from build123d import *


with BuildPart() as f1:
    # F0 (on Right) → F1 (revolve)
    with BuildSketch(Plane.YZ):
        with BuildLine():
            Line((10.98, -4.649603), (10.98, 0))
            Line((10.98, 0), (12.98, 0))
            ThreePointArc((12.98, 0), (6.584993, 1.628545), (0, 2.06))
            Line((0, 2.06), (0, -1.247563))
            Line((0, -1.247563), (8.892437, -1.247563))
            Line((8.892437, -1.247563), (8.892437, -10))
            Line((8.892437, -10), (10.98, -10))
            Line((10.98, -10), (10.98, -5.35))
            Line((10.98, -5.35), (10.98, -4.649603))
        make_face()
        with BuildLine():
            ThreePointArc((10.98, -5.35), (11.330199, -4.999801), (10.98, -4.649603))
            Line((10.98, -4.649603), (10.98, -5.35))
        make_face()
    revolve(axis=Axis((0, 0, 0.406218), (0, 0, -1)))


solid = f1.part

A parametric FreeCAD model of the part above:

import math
import FreeCAD as App
import Part
import Sketcher
from FreeCAD import Vector

doc = App.newDocument("Part")
body = doc.addObject("PartDesign::Body", "Body")

# Sketch on YZ plane
sketch1 = body.newObject("Sketcher::SketchObject", "Sketch")
sketch1.AttachmentSupport = (doc.getObject("YZ_Plane"), [""])
sketch1.MapMode = "FlatFace"
sketch1.addGeometry(Part.LineSegment(Vector(10.98, 0, 0), Vector(12.98, 0, 0)), False)
sketch1.addGeometry(Part.ArcOfCircle(Part.Circle(Vector(0.95, -33.86, 0), Vector(0, 0, 1), 35.93), math.radians(70), math.radians(92)), False)
sketch1.addGeometry(Part.LineSegment(Vector(0, 2.06, 0), Vector(0, -1.25, 0)), False)
sketch1.addGeometry(Part.LineSegment(Vector(0, -1.25, 0), Vector(8.89, -1.25, 0)), False)
sketch1.addGeometry(Part.LineSegment(Vector(8.89, -1.25, 0), Vector(8.89, -10, 0)), False)
sketch1.addGeometry(Part.LineSegment(Vector(8.89, -10, 0), Vector(10.98, -10, 0)), False)
sketch1.addGeometry(Part.LineSegment(Vector(10.98, -10, 0), Vector(10.98, -5.35, 0)), False)
sketch1.addGeometry(Part.ArcOfCircle(Part.Circle(Vector(10.98, -5, 0), Vector(0, 0, 1), 0.35), math.radians(-90), math.radians(90)), False)
sketch1.addGeometry(Part.LineSegment(Vector(10.98, -4.65, 0), Vector(10.98, 0, 0)), False)
sketch1.addConstraint(Sketcher.Constraint("Coincident", 0, 2, 1, 1))
sketch1.addConstraint(Sketcher.Constraint("Coincident", 1, 2, 2, 1))
sketch1.addConstraint(Sketcher.Constraint("Coincident", 2, 2, 3, 1))
sketch1.addConstraint(Sketcher.Constraint("Coincident", 3, 2, 4, 1))
sketch1.addConstraint(Sketcher.Constraint("Coincident", 4, 2, 5, 1))
sketch1.addConstraint(Sketcher.Constraint("Coincident", 5, 2, 6, 1))
sketch1.addConstraint(Sketcher.Constraint("Coincident", 6, 2, 7, 1))
sketch1.addConstraint(Sketcher.Constraint("Coincident", 7, 2, 8, 1))
sketch1.addConstraint(Sketcher.Constraint("Coincident", 8, 2, 0, 1))
sketch1.addConstraint(Sketcher.Constraint("Horizontal", 0))
sketch1.addConstraint(Sketcher.Constraint("Vertical", 2))
sketch1.addConstraint(Sketcher.Constraint("Horizontal", 3))
sketch1.addConstraint(Sketcher.Constraint("Vertical", 4))
sketch1.addConstraint(Sketcher.Constraint("Horizontal", 5))
sketch1.addConstraint(Sketcher.Constraint("Vertical", 6))
sketch1.addConstraint(Sketcher.Constraint("Vertical", 8))
sketch1.addConstraint(Sketcher.Constraint("PointOnObject", 0, 2, -1))
sketch1.addConstraint(Sketcher.Constraint("PointOnObject", 1, 2, -2))
sketch1.addConstraint(Sketcher.Constraint("Vertical", 7, 3, 5, 2))
sketch1.addConstraint(Sketcher.Constraint("Vertical", 6, 2, 7, 2))
sketch1.addConstraint(Sketcher.Constraint("DistanceX", 0, 1, 0, 2, 2.0))
sketch1.addConstraint(Sketcher.Constraint("DistanceY", 4, 2, -1, 1, 10.0))
sketch1.addConstraint(Sketcher.Constraint("DistanceY", 6, 1, 6, 2, 4.65))
sketch1.addConstraint(Sketcher.Constraint("Radius", 7, 0.350199))
sketch1.addConstraint(Sketcher.Constraint("DistanceX", -1, 1, 7, 3, 10.98))
sketch1.addConstraint(Sketcher.Constraint("DistanceY", -1, 1, 1, 2, 2.06))
sketch1.addConstraint(Sketcher.Constraint("Radius", 1, 35.928782))
sketch1.addConstraint(Sketcher.Constraint("DistanceX", 3, 1, 3, 2, 8.892437))
sketch1.addConstraint(Sketcher.Constraint("DistanceY", 2, 2, 2, 1, 3.307563))
revolution = body.newObject("PartDesign::Revolution", "Revolution")
revolution.Profile = sketch1
revolution.ReferenceAxis = (sketch1, ["V_Axis"])
revolution.Angle = 360

doc.recompute()
